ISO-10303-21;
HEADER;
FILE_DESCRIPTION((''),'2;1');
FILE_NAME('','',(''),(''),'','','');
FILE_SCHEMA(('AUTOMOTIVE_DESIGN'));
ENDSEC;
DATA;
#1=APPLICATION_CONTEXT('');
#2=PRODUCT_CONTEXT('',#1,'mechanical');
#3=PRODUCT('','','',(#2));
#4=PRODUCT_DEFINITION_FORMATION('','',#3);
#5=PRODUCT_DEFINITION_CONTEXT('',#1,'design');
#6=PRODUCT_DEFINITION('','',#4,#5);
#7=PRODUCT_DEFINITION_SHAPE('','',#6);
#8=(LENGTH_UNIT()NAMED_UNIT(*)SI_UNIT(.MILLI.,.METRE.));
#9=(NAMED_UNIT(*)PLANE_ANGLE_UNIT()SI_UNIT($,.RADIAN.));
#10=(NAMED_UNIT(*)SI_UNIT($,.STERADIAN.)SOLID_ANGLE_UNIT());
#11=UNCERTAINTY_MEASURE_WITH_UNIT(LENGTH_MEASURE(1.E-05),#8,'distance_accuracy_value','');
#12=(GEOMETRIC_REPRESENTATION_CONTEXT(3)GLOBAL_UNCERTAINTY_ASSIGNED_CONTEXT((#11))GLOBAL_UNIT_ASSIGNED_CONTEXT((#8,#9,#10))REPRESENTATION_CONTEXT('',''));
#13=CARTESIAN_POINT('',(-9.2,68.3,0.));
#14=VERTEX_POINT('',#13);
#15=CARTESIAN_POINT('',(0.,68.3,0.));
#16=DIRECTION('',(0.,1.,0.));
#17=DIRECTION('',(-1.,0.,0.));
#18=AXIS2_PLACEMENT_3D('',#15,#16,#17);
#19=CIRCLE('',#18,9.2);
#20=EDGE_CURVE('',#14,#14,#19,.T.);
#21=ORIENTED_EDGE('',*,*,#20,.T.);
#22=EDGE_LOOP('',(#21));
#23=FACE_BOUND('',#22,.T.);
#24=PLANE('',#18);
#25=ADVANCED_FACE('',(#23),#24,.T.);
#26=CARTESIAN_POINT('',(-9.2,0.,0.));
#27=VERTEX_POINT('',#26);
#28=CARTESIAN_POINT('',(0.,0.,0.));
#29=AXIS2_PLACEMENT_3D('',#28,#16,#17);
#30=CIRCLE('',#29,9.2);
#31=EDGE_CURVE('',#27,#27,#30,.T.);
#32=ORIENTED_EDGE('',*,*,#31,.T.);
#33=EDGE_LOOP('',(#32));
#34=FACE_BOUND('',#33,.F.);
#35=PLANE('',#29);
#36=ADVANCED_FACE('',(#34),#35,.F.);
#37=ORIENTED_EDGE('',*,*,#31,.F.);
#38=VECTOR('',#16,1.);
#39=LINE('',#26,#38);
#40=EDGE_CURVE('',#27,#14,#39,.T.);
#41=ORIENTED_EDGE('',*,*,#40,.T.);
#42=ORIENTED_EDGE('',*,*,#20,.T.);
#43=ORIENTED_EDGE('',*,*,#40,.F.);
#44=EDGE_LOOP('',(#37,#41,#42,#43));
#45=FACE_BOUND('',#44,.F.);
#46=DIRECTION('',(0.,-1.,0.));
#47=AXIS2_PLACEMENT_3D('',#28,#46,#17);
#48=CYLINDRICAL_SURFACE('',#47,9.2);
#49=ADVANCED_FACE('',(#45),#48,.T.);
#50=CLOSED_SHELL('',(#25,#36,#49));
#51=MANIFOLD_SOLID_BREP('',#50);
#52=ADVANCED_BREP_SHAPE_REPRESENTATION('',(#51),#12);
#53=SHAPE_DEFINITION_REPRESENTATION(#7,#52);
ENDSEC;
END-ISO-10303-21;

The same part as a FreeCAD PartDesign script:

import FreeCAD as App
import Part
import Sketcher
from FreeCAD import Vector

doc = App.newDocument("Part")
body = doc.addObject("PartDesign::Body", "Body")

# Sketch on XZ plane
sketch1 = doc.addObject("Sketcher::SketchObject", "Sketch")
body.addObject(sketch1)
sketch1.AttachmentSupport = (doc.XZ_Plane, [""])
sketch1.MapMode = "FlatFace"
sketch1.addGeometry(Part.Circle(Vector(0, 0, 0), Vector(0, 0, 1), 9), False)
sketch1.addConstraint([
    Sketcher.Constraint("Coincident", 0, 3, -1, 1),
    Sketcher.Constraint("Diameter", 0, 18.4),
])
pad1 = doc.addObject("PartDesign::Pad", "Pad")
body.addObject(pad1)
pad1.Profile = sketch1
pad1.Length = 68.3
pad1.Reversed = True

doc.recompute()
